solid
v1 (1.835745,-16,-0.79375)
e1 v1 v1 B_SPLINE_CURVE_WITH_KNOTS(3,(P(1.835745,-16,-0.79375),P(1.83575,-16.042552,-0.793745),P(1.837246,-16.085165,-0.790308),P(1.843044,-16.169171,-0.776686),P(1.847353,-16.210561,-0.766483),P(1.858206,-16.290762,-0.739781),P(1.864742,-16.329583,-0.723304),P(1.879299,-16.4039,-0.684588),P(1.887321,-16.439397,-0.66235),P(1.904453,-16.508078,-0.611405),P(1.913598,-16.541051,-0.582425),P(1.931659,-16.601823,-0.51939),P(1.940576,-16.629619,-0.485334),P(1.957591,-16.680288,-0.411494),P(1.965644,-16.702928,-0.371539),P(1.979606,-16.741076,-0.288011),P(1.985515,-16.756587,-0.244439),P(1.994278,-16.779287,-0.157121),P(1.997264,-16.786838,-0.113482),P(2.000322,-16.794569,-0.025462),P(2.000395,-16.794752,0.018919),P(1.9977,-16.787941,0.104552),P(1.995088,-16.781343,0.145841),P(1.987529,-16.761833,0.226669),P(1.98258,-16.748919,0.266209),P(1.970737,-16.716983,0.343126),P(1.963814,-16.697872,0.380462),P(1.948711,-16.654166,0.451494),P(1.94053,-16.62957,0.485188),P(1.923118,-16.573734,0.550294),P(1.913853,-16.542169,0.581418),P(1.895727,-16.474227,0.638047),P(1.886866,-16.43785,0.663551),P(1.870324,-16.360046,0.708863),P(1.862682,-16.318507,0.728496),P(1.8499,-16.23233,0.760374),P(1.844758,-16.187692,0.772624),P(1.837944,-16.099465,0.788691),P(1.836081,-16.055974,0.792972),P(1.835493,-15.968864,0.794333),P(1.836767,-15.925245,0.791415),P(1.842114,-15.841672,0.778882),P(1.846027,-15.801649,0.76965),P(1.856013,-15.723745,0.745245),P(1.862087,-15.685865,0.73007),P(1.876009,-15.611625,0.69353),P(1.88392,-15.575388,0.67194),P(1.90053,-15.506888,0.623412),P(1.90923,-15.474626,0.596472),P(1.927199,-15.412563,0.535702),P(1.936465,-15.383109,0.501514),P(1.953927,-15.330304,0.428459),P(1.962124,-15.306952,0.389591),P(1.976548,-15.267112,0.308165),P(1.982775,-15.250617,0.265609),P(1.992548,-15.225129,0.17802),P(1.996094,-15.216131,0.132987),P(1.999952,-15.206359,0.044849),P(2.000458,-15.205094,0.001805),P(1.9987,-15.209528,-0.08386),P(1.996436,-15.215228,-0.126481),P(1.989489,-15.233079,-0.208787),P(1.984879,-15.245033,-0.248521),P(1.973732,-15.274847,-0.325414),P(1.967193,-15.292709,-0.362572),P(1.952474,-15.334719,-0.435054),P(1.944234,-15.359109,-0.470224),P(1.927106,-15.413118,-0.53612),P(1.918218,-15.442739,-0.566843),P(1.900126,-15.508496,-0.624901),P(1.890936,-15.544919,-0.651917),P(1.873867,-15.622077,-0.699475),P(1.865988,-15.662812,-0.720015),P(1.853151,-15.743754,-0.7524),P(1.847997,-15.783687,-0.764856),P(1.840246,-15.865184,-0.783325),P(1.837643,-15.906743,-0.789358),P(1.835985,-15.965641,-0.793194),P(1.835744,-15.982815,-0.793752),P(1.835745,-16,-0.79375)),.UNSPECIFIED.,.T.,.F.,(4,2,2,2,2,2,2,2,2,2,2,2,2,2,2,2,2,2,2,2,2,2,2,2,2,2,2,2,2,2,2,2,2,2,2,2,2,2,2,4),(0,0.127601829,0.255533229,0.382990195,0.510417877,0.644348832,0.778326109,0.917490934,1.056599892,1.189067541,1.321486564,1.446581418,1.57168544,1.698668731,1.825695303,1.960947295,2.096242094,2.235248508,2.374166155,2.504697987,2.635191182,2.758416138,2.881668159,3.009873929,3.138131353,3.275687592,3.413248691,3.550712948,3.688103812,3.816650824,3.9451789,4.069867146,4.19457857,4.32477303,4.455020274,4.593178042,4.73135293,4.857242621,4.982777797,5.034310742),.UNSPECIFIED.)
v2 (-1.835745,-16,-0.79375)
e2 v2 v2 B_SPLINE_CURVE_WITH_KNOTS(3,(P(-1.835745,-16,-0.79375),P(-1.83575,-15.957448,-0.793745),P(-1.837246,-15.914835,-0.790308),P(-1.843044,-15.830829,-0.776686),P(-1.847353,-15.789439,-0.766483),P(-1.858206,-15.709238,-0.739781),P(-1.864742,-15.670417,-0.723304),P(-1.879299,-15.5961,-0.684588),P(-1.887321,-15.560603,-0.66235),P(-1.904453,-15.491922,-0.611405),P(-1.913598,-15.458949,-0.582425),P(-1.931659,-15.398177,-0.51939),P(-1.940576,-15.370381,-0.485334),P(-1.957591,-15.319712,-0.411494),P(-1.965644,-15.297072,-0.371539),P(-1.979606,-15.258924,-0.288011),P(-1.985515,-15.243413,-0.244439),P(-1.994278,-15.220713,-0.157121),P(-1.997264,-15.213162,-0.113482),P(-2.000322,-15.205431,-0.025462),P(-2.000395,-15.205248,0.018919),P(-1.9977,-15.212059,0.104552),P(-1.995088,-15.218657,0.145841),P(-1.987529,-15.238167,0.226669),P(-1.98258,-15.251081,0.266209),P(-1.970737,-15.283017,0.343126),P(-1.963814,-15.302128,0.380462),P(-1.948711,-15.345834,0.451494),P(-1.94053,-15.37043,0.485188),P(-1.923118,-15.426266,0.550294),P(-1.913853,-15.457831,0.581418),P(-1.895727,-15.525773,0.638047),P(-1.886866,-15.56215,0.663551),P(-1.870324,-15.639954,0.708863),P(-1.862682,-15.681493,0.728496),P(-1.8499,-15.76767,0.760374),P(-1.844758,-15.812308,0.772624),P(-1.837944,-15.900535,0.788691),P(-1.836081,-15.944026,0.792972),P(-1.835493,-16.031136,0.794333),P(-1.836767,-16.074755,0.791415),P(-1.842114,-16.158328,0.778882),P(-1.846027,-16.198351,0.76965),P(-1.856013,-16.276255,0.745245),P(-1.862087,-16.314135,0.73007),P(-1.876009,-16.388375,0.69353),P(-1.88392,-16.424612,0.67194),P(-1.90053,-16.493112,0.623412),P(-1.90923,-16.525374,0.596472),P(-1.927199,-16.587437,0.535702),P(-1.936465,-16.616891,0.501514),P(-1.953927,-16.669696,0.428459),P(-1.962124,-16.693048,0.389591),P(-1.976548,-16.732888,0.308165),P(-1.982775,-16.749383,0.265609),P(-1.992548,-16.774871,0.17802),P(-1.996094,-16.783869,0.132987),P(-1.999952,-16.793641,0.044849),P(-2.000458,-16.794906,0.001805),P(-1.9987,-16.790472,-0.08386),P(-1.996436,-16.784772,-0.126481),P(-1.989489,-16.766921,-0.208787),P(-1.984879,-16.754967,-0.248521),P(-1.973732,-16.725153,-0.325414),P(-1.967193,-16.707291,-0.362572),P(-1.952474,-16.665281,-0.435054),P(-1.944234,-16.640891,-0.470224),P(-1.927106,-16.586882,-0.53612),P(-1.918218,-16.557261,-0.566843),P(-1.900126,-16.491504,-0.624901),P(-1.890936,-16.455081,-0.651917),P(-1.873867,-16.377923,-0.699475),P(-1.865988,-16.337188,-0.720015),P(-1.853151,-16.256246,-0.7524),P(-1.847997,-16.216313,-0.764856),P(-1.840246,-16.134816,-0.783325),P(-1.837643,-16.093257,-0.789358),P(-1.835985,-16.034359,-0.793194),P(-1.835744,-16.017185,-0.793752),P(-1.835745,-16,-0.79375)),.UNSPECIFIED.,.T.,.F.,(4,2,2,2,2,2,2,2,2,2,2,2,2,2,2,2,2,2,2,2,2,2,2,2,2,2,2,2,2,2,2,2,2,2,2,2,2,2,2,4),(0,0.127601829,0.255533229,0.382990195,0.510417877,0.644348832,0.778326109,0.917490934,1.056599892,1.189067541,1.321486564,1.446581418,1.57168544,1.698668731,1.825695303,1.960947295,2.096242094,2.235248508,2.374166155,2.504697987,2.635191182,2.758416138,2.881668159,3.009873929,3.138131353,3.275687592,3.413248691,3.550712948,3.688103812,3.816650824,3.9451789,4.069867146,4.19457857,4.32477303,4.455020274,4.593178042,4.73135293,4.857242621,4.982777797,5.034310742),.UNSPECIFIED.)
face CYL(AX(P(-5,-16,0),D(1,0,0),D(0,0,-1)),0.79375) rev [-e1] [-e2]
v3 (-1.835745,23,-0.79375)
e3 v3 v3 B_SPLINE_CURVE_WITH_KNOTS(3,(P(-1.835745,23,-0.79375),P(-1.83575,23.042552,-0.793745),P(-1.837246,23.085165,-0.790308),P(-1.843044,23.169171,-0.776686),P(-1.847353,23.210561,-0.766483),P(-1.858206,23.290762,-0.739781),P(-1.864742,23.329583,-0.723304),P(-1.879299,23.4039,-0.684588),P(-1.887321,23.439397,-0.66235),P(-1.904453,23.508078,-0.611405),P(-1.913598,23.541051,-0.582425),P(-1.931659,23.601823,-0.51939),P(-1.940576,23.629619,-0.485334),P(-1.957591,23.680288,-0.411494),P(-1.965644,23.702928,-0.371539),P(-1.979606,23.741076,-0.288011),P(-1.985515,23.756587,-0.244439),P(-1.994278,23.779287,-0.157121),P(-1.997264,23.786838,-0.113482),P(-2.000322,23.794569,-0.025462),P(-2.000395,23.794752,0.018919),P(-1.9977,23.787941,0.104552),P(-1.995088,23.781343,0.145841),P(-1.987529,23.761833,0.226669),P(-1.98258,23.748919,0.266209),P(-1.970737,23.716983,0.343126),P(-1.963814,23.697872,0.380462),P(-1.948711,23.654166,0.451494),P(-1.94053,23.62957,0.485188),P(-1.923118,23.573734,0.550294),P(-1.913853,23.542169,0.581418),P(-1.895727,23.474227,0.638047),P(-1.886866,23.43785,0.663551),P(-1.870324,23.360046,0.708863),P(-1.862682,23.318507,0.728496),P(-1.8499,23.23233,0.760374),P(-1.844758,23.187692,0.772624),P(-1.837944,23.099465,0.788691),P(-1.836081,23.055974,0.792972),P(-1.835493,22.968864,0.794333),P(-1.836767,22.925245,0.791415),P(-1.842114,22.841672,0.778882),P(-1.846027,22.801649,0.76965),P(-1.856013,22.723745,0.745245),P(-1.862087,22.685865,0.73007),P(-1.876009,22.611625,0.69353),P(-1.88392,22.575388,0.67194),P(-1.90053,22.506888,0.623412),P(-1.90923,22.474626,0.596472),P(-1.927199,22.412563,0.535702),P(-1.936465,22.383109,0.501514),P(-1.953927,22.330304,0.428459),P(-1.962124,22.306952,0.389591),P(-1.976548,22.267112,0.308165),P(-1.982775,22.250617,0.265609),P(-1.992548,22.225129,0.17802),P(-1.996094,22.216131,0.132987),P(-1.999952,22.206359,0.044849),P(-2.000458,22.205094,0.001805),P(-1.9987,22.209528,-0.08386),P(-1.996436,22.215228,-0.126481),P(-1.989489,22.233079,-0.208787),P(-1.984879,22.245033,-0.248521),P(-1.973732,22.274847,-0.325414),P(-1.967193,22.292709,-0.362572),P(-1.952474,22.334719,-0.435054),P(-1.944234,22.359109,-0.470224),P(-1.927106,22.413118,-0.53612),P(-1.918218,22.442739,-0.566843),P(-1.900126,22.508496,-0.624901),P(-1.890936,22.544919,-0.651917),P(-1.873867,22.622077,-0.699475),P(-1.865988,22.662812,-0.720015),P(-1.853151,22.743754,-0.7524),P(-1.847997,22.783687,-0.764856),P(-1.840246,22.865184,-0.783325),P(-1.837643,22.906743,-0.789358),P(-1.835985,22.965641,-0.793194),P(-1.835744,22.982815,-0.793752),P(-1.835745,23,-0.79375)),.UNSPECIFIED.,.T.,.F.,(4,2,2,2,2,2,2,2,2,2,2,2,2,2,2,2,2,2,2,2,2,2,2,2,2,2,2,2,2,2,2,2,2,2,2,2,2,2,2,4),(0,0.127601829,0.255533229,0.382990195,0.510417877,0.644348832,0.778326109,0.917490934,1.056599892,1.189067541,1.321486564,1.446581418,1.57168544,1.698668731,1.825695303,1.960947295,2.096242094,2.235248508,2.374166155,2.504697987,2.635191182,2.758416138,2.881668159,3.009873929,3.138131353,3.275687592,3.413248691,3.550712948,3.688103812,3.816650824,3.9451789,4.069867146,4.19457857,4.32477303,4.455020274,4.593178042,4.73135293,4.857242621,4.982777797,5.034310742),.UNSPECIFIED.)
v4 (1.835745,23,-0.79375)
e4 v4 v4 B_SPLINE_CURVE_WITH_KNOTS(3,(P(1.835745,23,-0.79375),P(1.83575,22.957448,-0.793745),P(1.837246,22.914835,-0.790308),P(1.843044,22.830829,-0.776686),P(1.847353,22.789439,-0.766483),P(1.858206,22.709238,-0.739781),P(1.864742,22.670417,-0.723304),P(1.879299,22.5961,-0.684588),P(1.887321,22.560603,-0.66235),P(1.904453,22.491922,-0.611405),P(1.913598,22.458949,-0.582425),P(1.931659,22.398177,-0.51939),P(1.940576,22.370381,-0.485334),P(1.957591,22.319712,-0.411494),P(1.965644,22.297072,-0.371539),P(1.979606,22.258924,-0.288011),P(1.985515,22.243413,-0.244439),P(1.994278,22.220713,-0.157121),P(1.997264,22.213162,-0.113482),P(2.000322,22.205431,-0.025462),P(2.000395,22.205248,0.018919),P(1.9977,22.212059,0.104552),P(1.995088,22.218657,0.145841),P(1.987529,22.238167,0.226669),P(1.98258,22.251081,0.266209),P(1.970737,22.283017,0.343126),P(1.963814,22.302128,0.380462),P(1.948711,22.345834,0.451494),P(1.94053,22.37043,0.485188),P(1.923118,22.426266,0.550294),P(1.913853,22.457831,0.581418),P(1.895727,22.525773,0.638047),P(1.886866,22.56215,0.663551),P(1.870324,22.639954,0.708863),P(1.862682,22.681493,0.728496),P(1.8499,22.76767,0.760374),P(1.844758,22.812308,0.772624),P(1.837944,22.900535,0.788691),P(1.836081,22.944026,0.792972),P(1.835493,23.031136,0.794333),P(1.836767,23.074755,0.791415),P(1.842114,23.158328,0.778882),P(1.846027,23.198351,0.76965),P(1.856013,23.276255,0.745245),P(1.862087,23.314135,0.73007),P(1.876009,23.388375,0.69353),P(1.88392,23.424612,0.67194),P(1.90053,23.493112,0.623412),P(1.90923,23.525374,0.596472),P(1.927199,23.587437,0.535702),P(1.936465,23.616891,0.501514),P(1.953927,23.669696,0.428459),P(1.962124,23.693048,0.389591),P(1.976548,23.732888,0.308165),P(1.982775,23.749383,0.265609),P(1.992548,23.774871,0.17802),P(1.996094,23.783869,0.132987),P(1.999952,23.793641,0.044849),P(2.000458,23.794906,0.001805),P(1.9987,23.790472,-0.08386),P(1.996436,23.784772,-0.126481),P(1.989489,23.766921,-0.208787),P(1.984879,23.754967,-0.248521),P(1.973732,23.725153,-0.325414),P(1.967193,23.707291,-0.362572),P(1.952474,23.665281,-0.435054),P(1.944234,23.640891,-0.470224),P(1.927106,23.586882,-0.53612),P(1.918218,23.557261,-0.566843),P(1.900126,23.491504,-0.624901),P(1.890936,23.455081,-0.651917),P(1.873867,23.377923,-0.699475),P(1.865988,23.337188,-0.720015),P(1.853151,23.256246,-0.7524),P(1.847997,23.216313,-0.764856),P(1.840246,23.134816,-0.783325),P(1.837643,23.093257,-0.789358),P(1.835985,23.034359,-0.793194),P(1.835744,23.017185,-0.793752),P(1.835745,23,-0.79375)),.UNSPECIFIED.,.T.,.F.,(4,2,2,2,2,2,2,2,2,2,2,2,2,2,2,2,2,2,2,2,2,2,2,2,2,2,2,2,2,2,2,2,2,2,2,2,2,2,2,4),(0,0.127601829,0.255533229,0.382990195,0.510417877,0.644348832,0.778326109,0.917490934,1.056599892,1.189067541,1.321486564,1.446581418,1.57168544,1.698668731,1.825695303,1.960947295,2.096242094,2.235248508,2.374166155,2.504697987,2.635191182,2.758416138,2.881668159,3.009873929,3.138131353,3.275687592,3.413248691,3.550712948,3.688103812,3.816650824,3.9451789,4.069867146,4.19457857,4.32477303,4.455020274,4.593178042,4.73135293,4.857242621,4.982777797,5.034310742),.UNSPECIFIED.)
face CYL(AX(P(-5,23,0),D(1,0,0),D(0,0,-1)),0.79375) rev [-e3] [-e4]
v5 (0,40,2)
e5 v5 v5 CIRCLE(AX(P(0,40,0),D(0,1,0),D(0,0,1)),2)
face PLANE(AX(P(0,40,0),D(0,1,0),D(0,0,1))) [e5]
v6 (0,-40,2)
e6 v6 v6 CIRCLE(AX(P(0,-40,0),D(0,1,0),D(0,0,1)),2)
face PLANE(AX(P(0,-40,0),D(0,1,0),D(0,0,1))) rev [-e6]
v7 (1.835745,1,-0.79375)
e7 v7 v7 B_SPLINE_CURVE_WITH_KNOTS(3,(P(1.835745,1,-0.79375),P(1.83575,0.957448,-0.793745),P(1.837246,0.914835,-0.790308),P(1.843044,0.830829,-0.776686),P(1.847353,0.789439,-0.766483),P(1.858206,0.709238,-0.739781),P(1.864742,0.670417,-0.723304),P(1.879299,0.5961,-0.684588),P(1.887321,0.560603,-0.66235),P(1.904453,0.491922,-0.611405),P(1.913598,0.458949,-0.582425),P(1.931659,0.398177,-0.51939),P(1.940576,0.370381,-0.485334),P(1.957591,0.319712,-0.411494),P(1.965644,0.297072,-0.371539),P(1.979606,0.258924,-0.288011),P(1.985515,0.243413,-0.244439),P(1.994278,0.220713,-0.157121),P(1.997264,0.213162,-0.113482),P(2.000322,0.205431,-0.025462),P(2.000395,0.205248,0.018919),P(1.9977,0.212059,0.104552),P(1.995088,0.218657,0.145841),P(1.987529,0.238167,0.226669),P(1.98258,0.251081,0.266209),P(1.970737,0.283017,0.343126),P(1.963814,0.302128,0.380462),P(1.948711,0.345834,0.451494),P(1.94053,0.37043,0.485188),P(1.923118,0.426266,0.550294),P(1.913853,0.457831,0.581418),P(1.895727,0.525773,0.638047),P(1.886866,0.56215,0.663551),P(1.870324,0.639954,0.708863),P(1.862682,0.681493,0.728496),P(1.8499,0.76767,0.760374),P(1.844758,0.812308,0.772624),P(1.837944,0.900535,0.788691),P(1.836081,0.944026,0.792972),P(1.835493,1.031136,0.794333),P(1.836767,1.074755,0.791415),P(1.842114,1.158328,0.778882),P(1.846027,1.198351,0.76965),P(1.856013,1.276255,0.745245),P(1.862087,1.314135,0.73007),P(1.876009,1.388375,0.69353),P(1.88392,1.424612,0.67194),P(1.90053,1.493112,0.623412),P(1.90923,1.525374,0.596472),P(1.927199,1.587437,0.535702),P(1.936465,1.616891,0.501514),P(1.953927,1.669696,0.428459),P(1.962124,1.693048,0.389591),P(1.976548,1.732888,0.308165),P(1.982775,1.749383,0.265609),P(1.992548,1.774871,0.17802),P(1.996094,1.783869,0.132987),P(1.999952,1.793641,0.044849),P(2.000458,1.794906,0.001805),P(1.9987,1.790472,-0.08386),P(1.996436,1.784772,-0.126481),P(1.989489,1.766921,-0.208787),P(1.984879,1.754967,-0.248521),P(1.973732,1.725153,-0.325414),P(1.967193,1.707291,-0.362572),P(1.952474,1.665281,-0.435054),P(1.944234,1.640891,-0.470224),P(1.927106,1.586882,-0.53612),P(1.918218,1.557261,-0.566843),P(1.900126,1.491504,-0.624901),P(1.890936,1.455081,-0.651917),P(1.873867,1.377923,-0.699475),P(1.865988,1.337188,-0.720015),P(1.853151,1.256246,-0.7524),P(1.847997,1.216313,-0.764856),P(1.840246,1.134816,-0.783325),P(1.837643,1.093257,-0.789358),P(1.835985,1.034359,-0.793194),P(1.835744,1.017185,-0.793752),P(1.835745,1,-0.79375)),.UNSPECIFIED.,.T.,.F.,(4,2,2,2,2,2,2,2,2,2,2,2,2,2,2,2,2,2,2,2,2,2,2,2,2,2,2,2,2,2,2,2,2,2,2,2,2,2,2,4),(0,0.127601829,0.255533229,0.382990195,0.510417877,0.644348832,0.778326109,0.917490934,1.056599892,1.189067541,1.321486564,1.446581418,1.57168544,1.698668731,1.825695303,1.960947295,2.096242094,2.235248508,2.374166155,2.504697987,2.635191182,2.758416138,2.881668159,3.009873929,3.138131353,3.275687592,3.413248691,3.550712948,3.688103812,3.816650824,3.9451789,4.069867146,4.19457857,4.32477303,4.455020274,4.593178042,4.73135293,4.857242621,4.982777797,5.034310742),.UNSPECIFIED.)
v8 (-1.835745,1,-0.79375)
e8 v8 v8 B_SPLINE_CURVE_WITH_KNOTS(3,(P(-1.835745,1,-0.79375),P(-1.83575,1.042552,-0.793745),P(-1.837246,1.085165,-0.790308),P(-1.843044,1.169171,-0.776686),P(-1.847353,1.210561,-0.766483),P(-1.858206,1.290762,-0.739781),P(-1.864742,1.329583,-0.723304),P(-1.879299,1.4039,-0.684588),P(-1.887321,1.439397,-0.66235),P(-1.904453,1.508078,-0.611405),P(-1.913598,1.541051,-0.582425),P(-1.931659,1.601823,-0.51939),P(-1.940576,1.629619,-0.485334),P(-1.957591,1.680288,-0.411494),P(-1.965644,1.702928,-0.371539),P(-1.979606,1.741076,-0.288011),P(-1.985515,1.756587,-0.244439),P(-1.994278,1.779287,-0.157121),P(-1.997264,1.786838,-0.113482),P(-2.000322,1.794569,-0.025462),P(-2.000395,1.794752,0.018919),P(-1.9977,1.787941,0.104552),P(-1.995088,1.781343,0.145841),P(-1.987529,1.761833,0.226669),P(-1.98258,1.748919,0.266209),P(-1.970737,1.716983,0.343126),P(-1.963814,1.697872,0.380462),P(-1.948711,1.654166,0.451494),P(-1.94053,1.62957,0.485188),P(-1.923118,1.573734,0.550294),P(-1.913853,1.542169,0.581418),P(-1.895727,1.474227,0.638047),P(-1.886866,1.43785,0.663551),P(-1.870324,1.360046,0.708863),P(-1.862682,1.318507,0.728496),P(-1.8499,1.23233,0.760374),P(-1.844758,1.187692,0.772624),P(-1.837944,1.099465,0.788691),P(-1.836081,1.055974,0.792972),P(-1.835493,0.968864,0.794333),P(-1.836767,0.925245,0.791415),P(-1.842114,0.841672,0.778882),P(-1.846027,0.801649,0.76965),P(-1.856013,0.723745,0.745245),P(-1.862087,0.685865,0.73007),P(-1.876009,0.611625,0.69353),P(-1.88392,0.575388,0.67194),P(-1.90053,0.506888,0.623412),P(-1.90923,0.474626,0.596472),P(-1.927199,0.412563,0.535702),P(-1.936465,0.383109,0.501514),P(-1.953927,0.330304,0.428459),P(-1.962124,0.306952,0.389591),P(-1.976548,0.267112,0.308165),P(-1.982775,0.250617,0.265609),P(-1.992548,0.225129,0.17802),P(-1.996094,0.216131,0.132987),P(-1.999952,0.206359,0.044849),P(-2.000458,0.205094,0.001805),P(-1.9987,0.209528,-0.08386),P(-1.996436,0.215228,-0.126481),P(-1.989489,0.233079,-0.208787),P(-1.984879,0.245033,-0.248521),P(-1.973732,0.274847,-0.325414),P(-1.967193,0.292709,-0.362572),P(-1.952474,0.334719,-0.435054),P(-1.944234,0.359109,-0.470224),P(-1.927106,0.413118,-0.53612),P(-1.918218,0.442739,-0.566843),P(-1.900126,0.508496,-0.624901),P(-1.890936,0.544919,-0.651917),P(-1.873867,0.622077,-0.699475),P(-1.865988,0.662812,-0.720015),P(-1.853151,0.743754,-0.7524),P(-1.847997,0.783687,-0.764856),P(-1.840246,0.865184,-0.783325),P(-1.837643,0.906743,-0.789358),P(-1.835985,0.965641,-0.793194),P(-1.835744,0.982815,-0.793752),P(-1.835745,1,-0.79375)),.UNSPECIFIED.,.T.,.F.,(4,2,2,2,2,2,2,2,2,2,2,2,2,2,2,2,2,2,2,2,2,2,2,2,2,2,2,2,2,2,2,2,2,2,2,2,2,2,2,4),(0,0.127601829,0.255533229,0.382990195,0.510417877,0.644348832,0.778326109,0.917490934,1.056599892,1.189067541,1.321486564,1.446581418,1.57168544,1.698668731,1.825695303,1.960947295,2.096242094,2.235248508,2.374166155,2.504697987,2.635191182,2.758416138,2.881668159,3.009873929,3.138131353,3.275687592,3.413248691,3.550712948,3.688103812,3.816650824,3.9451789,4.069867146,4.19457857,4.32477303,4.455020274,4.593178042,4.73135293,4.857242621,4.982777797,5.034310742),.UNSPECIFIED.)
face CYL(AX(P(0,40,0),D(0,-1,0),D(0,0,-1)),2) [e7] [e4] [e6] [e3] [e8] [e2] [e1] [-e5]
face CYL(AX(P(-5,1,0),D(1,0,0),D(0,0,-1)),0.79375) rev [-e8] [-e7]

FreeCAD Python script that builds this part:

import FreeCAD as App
import Part
import Sketcher

doc = App.newDocument("Part")
body = doc.addObject("PartDesign::Body", "Body")

# Sketch on XZ plane
sketch1 = body.newObject("Sketcher::SketchObject", "Sketch")
sketch1.AttachmentSupport = (doc.getObject("XZ_Plane"), [""])
sketch1.MapMode = "FlatFace"
sketch1.addGeometry(Part.Circle(App.Vector(0, 0, 0), App.Vector(0, 0, 1), 2), False)
sketch1.addConstraint([
    Sketcher.Constraint("Coincident", 0, 3, -1, 1),
    Sketcher.Constraint("Diameter", 0, 4.0),
])
pad1 = body.newObject("PartDesign::Pad", "Pad")
pad1.Profile = sketch1
pad1.Length = 80
pad1.Midplane = True

# Sketch on YZ plane
sketch2 = body.newObject("Sketcher::SketchObject", "Sketch001")
sketch2.AttachmentSupport = (doc.getObject("YZ_Plane"), [""])
sketch2.MapMode = "FlatFace"
sketch2.addGeometry([
    Part.Circle(App.Vector(1, 0, 0), App.Vector(0, 0, 1), 0.79375),
    Part.Circle(App.Vector(23, 0, 0), App.Vector(0, 0, 1), 0.79375),
], False)
sketch2.addConstraint([
    Sketcher.Constraint("Equal", 0, 1),
    Sketcher.Constraint("PointOnObject", 0, 3, -1),
    Sketcher.Constraint("PointOnObject", 1, 3, -1),
    Sketcher.Constraint("DistanceX", -1, 1, 0, 3, 1.0),
    Sketcher.Constraint("DistanceX", -1, 1, 1, 3, 23.0),
    Sketcher.Constraint("Diameter", 0, 1.5875),
])
pocket1 = body.newObject("PartDesign::Pocket", "Pocket")
pocket1.Profile = sketch2
pocket1.Length = 10
pocket1.Midplane = True

# Sketch on YZ plane
sketch3 = body.newObject("Sketcher::SketchObject", "Sketch002")
sketch3.AttachmentSupport = (doc.getObject("YZ_Plane"), [""])
sketch3.MapMode = "FlatFace"
sketch3.addGeometry(Part.Circle(App.Vector(-16, 0, 0), App.Vector(0, 0, 1), 0.79375), False)
sketch3.addConstraint([
    Sketcher.Constraint("PointOnObject", 0, 3, -1),
    Sketcher.Constraint("DistanceX", 0, 3, -1, 1, 16.0),
    Sketcher.Constraint("Diameter", 0, 1.5875),
])
pocket2 = body.newObject("PartDesign::Pocket", "Pocket001")
pocket2.Profile = sketch3
pocket2.Length = 10
pocket2.Midplane = True

doc.recompute()
